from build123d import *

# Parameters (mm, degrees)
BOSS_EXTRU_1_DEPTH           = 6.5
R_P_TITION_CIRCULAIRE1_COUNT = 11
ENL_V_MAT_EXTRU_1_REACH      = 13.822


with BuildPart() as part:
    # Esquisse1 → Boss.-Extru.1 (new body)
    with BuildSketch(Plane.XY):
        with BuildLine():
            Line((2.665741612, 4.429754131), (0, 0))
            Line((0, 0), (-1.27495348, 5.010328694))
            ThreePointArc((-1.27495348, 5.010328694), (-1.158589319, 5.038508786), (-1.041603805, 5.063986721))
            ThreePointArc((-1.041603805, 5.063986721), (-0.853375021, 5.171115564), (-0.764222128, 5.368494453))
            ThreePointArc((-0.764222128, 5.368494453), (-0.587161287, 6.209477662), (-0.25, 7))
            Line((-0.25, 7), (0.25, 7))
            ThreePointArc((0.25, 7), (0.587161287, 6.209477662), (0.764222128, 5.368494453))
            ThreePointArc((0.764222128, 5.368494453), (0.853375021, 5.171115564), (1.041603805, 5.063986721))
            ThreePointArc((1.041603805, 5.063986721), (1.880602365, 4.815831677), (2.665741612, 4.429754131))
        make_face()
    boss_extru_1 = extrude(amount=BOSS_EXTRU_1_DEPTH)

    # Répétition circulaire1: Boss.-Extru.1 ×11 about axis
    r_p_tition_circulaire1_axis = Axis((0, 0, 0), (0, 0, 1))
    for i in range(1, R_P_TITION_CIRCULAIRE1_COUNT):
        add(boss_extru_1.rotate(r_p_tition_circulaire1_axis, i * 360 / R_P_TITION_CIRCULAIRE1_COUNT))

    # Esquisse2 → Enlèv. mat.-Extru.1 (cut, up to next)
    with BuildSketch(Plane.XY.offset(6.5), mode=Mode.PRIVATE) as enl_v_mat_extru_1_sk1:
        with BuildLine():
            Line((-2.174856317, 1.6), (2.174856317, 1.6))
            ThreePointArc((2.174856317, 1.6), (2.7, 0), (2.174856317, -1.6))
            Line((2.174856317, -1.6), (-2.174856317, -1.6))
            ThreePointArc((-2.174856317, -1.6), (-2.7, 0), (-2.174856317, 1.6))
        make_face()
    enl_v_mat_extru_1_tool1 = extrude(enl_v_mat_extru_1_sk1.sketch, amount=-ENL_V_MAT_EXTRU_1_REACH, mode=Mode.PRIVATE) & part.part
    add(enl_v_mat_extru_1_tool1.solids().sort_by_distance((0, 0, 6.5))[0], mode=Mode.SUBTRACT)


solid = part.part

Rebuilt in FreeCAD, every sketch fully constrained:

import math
import FreeCAD as App
import Part
import Sketcher
Q = App.Units.Quantity

doc = App.newDocument("Part")
params = doc.addObject("Spreadsheet::Sheet", "Params")
for row, (alias, value) in enumerate([
    ("sketch1_radius", "4.4 mm"),
    ("sketch1_radius2", "5.17 mm"),
    ("sketch1_radius3", "0.35 mm"),
    ("sketch1_width", "0.5 mm"),
    ("pad1_length", "6.5 mm"),
    ("sketch2_radius", "2.7 mm"),
], start=1):
    params.set(f"A{row}", alias)
    params.set(f"B{row}", "=" + value)
    params.setAlias(f"B{row}", alias)

body = doc.addObject("PartDesign::Body", "Body")

# Sketch on XY plane
sketch1 = doc.addObject("Sketcher::SketchObject", "Sketch")
body.addObject(sketch1)
sketch1.AttachmentSupport = (doc.XY_Plane, [""])
sketch1.MapMode = "FlatFace"
sketch1.addGeometry([
    Part.LineSegment(App.Vector(0, 0, 0), App.Vector(2.67, 4.43, 0)),  # 0
    Part.ArcOfCircle(Part.Circle(App.Vector(0, 0, 0), App.Vector(0, 0, 1), 5.17), math.radians(58.96), math.radians(78.38)),  # 1
    Part.ArcOfCircle(Part.Circle(App.Vector(1.11, 5.41, 0), App.Vector(0, 0, 1), 0.35), math.radians(-174), math.radians(-102)),  # 2
    Part.ArcOfCircle(Part.Circle(App.Vector(-3.61, 4.89, 0), App.Vector(0, 0, 1), 4.4), math.radians(6), math.radians(29)),  # 3
    Part.LineSegment(App.Vector(0.25, 7, 0), App.Vector(-0.25, 7, 0)),  # 4
    Part.ArcOfCircle(Part.Circle(App.Vector(3.61, 4.89, 0), App.Vector(0, 0, 1), 4.4), math.radians(151), math.radians(174)),  # 5
    Part.ArcOfCircle(Part.Circle(App.Vector(-1.11, 5.41, 0), App.Vector(0, 0, 1), 0.35), math.radians(-78), math.radians(-6)),  # 6
    Part.ArcOfCircle(Part.Circle(App.Vector(0, 0, 0), App.Vector(0, 0, 1), 5.17), math.radians(101.62), math.radians(104.28)),  # 7
    Part.LineSegment(App.Vector(-1.27, 5.01, 0), App.Vector(0, 0, 0)),  # 8
], False)
sketch1.addConstraint([
    Sketcher.Constraint("Coincident", 0, 2, 1, 1),
    Sketcher.Constraint("Tangent", 1, 2, 2, 2),
    Sketcher.Constraint("Tangent", 2, 1, 3, 1),
    Sketcher.Constraint("Coincident", 3, 2, 4, 1),
    Sketcher.Constraint("Coincident", 4, 2, 5, 1),
    Sketcher.Constraint("Tangent", 5, 2, 6, 2),
    Sketcher.Constraint("Tangent", 6, 1, 7, 1),
    Sketcher.Constraint("Coincident", 7, 2, 8, 1),
    Sketcher.Constraint("Coincident", 8, 2, 0, 1),
    Sketcher.Constraint("Horizontal", 4),
    Sketcher.Constraint("Coincident", 1, 3, -1, 1),
    Sketcher.Constraint("Coincident", 7, 3, -1, 1),
    Sketcher.Constraint("Coincident", 8, 2, -1, 1),
    Sketcher.Constraint("Equal", 3, 5),
    Sketcher.Constraint("Equal", 2, 6),
    Sketcher.Constraint("Equal", 1, 7),
    Sketcher.Constraint("Symmetric", 3, 3, 5, 3, -2),
    Sketcher.Constraint("Radius", 3, Q("4.4 mm")),
    Sketcher.Constraint("Radius", 1, Q("5.17 mm")),
    Sketcher.Constraint("Radius", 2, Q("0.35 mm")),
    Sketcher.Constraint("DistanceX", 4, 2, 4, 1, Q("0.5 mm")),
    Sketcher.Constraint("DistanceY", -1, 1, 3, 2, Q("7 mm")),
    Sketcher.Constraint("DistanceX", -1, 1, 2, 3, Q("1.112119 mm")),
    Sketcher.Constraint("DistanceX", -1, 1, 0, 2, Q("2.665742 mm")),
    Sketcher.Constraint("DistanceY", -1, 1, 7, 2, Q("5.010329 mm")),
])
sketch1.setExpression("Constraints[17]", "Params.sketch1_radius")
sketch1.setExpression("Constraints[18]", "Params.sketch1_radius2")
sketch1.setExpression("Constraints[19]", "Params.sketch1_radius3")
sketch1.setExpression("Constraints[20]", "Params.sketch1_width")
pad1 = doc.addObject("PartDesign::Pad", "Pad")
body.addObject(pad1)
pad1.Profile = sketch1
pad1.setExpression("Length", "Params.pad1_length")
doc.recompute()

polarpattern = doc.addObject("PartDesign::PolarPattern", "PolarPattern")
body.addObject(polarpattern)
polarpattern.Originals = [pad1]
polarpattern.Axis = (doc.Z_Axis, [""])
polarpattern.Angle = 360
polarpattern.Occurrences = 11
body.Tip = polarpattern

# Sketch on XY plane
sketch2 = doc.addObject("Sketcher::SketchObject", "Sketch001")
body.addObject(sketch2)
sketch2.AttachmentSupport = (doc.XY_Plane, [""])
sketch2.MapMode = "FlatFace"
sketch2.AttachmentOffset = App.Placement(App.Vector(0, 0, 6.5), App.Rotation())
sketch2.addGeometry([
    Part.LineSegment(App.Vector(2.2, 1.6, 0), App.Vector(-2.2, 1.6, 0)),
    Part.ArcOfCircle(Part.Circle(App.Vector(0, 0, 0), App.Vector(0, 0, 1), 2.7), math.radians(144), math.radians(216)),
    Part.LineSegment(App.Vector(-2.2, -1.6, 0), App.Vector(2.2, -1.6, 0)),
    Part.ArcOfCircle(Part.Circle(App.Vector(0, 0, 0), App.Vector(0, 0, 1), 2.7), math.radians(-36), math.radians(36)),
], False)
sketch2.addConstraint([
    Sketcher.Constraint("Coincident", 0, 2, 1, 1),
    Sketcher.Constraint("Coincident", 1, 2, 2, 1),
    Sketcher.Constraint("Coincident", 2, 2, 3, 1),
    Sketcher.Constraint("Coincident", 3, 2, 0, 1),
    Sketcher.Constraint("Horizontal", 0),
    Sketcher.Constraint("Horizontal", 2),
    Sketcher.Constraint("Coincident", 1, 3, -1, 1),
    Sketcher.Constraint("Coincident", 3, 3, -1, 1),
    Sketcher.Constraint("Equal", 1, 3),
    Sketcher.Constraint("Vertical", 0, 2, 1, 2),
    Sketcher.Constraint("Radius", 1, Q("2.7 mm")),
    Sketcher.Constraint("DistanceY", -1, 1, 0, 2, Q("1.6 mm")),
])
sketch2.setExpression("Constraints[10]", "Params.sketch2_radius")
pocket1 = doc.addObject("PartDesign::Pocket", "Pocket")
body.addObject(pocket1)
pocket1.Profile = sketch2
pocket1.Type = "UpToFirst"

doc.recompute()
